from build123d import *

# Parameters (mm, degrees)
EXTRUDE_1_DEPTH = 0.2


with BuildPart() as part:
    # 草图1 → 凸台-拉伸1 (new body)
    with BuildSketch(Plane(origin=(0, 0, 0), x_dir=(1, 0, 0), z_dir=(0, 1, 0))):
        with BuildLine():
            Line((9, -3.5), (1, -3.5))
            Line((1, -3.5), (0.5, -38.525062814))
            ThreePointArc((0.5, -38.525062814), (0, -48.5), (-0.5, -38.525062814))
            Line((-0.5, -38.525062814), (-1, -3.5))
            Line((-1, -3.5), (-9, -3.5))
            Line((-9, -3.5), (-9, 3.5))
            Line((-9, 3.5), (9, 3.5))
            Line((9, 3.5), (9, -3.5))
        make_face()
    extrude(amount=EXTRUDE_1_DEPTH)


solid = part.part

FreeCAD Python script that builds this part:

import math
import FreeCAD as App
import Part
import Sketcher

V = App.Vector

doc = App.newDocument("Part")
body = doc.addObject("PartDesign::Body", "Body")

# Sketch on XZ plane
sketch1 = doc.addObject("Sketcher::SketchObject", "Sketch")
body.addObject(sketch1)
sketch1.AttachmentSupport = (doc.XZ_Plane, [""])
sketch1.MapMode = "FlatFace"
sketch1.addGeometry([
    Part.LineSegment(V(1, 3.5, 0), V(9, 3.5, 0)),  # 0
    Part.LineSegment(V(9, 3.5, 0), V(9, -3.5, 0)),  # 1
    Part.LineSegment(V(9, -3.5, 0), V(-9, -3.5, 0)),  # 2
    Part.LineSegment(V(-9, -3.5, 0), V(-9, 3.5, 0)),  # 3
    Part.LineSegment(V(-9, 3.5, 0), V(-1, 3.5, 0)),  # 4
    Part.LineSegment(V(-1, 3.5, 0), V(-0.5, 38.525063, 0)),  # 5
    Part.ArcOfCircle(Part.Circle(V(0, 43.5, 0), V(0, 0, 1), 5), math.radians(-84.26083), math.radians(264.26083)),  # 6
    Part.LineSegment(V(0.5, 38.525063, 0), V(1, 3.5, 0)),  # 7
], False)
sketch1.addConstraint([
    Sketcher.Constraint("Coincident", 0, 2, 1, 1),
    Sketcher.Constraint("Coincident", 1, 2, 2, 1),
    Sketcher.Constraint("Coincident", 2, 2, 3, 1),
    Sketcher.Constraint("Coincident", 3, 2, 4, 1),
    Sketcher.Constraint("Coincident", 4, 2, 5, 1),
    Sketcher.Constraint("Coincident", 5, 2, 6, 2),
    Sketcher.Constraint("Coincident", 6, 1, 7, 1),
    Sketcher.Constraint("Coincident", 7, 2, 0, 1),
    Sketcher.Constraint("Horizontal", 0),
    Sketcher.Constraint("Vertical", 1),
    Sketcher.Constraint("Horizontal", 2),
    Sketcher.Constraint("Vertical", 3),
    Sketcher.Constraint("Horizontal", 4),
    Sketcher.Constraint("Symmetric", 0, 2, 2, 2, -1, 1),
    Sketcher.Constraint("Symmetric", 5, 2, 6, 1, -2),
    Sketcher.Constraint("Symmetric", 4, 2, 7, 2, -2),
    Sketcher.Constraint("Radius", 6, 5.0),
    Sketcher.Constraint("DistanceX", 0, 1, 0, 2, 8.0),
    Sketcher.Constraint("DistanceX", 2, 2, 2, 1, 18.0),
    Sketcher.Constraint("DistanceY", 1, 2, 1, 1, 7.0),
    Sketcher.Constraint("DistanceY", 0, 2, 6, 3, 40.0),
    Sketcher.Constraint("DistanceX", 5, 2, 6, 1, 1.0),
])
pad1 = doc.addObject("PartDesign::Pad", "Pad")
body.addObject(pad1)
pad1.Profile = sketch1
pad1.Length = 0.2
pad1.Reversed = True

doc.recompute()
